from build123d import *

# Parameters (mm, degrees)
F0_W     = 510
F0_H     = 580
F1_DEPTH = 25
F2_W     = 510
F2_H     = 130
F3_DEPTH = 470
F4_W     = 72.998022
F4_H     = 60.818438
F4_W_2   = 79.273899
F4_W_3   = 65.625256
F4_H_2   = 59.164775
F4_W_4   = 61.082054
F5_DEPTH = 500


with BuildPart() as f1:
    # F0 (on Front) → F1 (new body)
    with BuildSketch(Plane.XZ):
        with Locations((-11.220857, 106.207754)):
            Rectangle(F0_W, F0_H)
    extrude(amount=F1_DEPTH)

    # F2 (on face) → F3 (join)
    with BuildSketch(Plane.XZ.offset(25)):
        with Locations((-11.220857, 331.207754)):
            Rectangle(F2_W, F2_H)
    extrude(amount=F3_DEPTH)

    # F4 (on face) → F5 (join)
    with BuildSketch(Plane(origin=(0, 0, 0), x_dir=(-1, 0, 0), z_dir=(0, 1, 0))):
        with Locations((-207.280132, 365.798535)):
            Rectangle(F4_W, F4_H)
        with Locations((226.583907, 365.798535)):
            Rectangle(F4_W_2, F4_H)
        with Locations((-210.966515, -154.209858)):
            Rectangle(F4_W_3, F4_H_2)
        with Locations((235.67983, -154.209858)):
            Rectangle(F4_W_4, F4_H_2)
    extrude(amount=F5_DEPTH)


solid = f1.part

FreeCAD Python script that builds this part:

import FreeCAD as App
import Part
import Sketcher

V = App.Vector
Q = App.Units.Quantity

doc = App.newDocument("Part")
body = doc.addObject("PartDesign::Body", "Body")

# Sketch on XZ plane
sketch1 = body.newObject("Sketcher::SketchObject", "Sketch")
sketch1.AttachmentSupport = (doc.getObject("XZ_Plane"), [""])
sketch1.MapMode = "FlatFace"
sketch1.addGeometry(Part.LineSegment(V(-266, 396, 0), V(-266, -184, 0)), False)
sketch1.addGeometry(Part.LineSegment(V(-266, -184, 0), V(244, -184, 0)), False)
sketch1.addGeometry(Part.LineSegment(V(244, -184, 0), V(244, 396, 0)), False)
sketch1.addGeometry(Part.LineSegment(V(244, 396, 0), V(-266, 396, 0)), False)
sketch1.addConstraint(Sketcher.Constraint("Coincident", 0, 2, 1, 1))
sketch1.addConstraint(Sketcher.Constraint("Coincident", 1, 2, 2, 1))
sketch1.addConstraint(Sketcher.Constraint("Coincident", 2, 2, 3, 1))
sketch1.addConstraint(Sketcher.Constraint("Coincident", 3, 2, 0, 1))
sketch1.addConstraint(Sketcher.Constraint("Vertical", 0))
sketch1.addConstraint(Sketcher.Constraint("Horizontal", 1))
sketch1.addConstraint(Sketcher.Constraint("Vertical", 2))
sketch1.addConstraint(Sketcher.Constraint("Horizontal", 3))
sketch1.addConstraint(Sketcher.Constraint("DistanceX", 1, 1, 1, 2, Q("510 mm")))
sketch1.addConstraint(Sketcher.Constraint("DistanceY", 0, 2, 0, 1, Q("580 mm")))
sketch1.addConstraint(Sketcher.Constraint("DistanceX", 0, 2, -1, 1, Q("266.220857 mm")))
sketch1.addConstraint(Sketcher.Constraint("DistanceY", 0, 2, -1, 1, Q("183.792246 mm")))
pad1 = body.newObject("PartDesign::Pad", "Pad")
pad1.Profile = sketch1
pad1.Length = 25

# Sketch on XZ plane
sketch2 = body.newObject("Sketcher::SketchObject", "Sketch001")
sketch2.AttachmentSupport = (doc.getObject("XZ_Plane"), [""])
sketch2.MapMode = "FlatFace"
sketch2.AttachmentOffset = App.Placement(V(0, 0, 25), App.Rotation())
sketch2.addGeometry(Part.LineSegment(V(-266, 396, 0), V(-266, 266, 0)), False)
sketch2.addGeometry(Part.LineSegment(V(-266, 266, 0), V(244, 266, 0)), False)
sketch2.addGeometry(Part.LineSegment(V(244, 266, 0), V(244, 396, 0)), False)
sketch2.addGeometry(Part.LineSegment(V(244, 396, 0), V(-266, 396, 0)), False)
sketch2.addConstraint(Sketcher.Constraint("Coincident", 0, 2, 1, 1))
sketch2.addConstraint(Sketcher.Constraint("Coincident", 1, 2, 2, 1))
sketch2.addConstraint(Sketcher.Constraint("Coincident", 2, 2, 3, 1))
sketch2.addConstraint(Sketcher.Constraint("Coincident", 3, 2, 0, 1))
sketch2.addConstraint(Sketcher.Constraint("Vertical", 0))
sketch2.addConstraint(Sketcher.Constraint("Horizontal", 1))
sketch2.addConstraint(Sketcher.Constraint("Vertical", 2))
sketch2.addConstraint(Sketcher.Constraint("Horizontal", 3))
sketch2.addConstraint(Sketcher.Constraint("DistanceX", 1, 1, 1, 2, Q("510 mm")))
sketch2.addConstraint(Sketcher.Constraint("DistanceY", 0, 2, 0, 1, Q("130 mm")))
sketch2.addConstraint(Sketcher.Constraint("DistanceX", 0, 2, -1, 1, Q("266.220857 mm")))
sketch2.addConstraint(Sketcher.Constraint("DistanceY", -1, 1, 0, 2, Q("266.207754 mm")))
pad2 = body.newObject("PartDesign::Pad", "Pad001")
pad2.Profile = sketch2
pad2.Length = 470

# Sketch on XZ plane
sketch3 = body.newObject("Sketcher::SketchObject", "Sketch002")
sketch3.AttachmentSupport = (doc.getObject("XZ_Plane"), [""])
sketch3.MapMode = "FlatFace"
sketch3.addGeometry(Part.LineSegment(V(244, 396, 0), V(244, 335, 0)), False)
sketch3.addGeometry(Part.LineSegment(V(244, 335, 0), V(171, 335, 0)), False)
sketch3.addGeometry(Part.LineSegment(V(171, 335, 0), V(171, 396, 0)), False)
sketch3.addGeometry(Part.LineSegment(V(171, 396, 0), V(244, 396, 0)), False)
sketch3.addGeometry(Part.LineSegment(V(-187, 396, 0), V(-187, 335, 0)), False)
sketch3.addGeometry(Part.LineSegment(V(-187, 335, 0), V(-266, 335, 0)), False)
sketch3.addGeometry(Part.LineSegment(V(-266, 335, 0), V(-266, 396, 0)), False)
sketch3.addGeometry(Part.LineSegment(V(-266, 396, 0), V(-187, 396, 0)), False)
sketch3.addGeometry(Part.LineSegment(V(244, -125, 0), V(244, -184, 0)), False)
sketch3.addGeometry(Part.LineSegment(V(244, -184, 0), V(178, -184, 0)), False)
sketch3.addGeometry(Part.LineSegment(V(178, -184, 0), V(178, -125, 0)), False)
sketch3.addGeometry(Part.LineSegment(V(178, -125, 0), V(244, -125, 0)), False)
sketch3.addGeometry(Part.LineSegment(V(-205, -125, 0), V(-205, -184, 0)), False)
sketch3.addGeometry(Part.LineSegment(V(-205, -184, 0), V(-266, -184, 0)), False)
sketch3.addGeometry(Part.LineSegment(V(-266, -184, 0), V(-266, -125, 0)), False)
sketch3.addGeometry(Part.LineSegment(V(-266, -125, 0), V(-205, -125, 0)), False)
sketch3.addConstraint(Sketcher.Constraint("Coincident", 0, 2, 1, 1))
sketch3.addConstraint(Sketcher.Constraint("Coincident", 1, 2, 2, 1))
sketch3.addConstraint(Sketcher.Constraint("Coincident", 2, 2, 3, 1))
sketch3.addConstraint(Sketcher.Constraint("Coincident", 3, 2, 0, 1))
sketch3.addConstraint(Sketcher.Constraint("Coincident", 4, 2, 5, 1))
sketch3.addConstraint(Sketcher.Constraint("Coincident", 5, 2, 6, 1))
sketch3.addConstraint(Sketcher.Constraint("Coincident", 6, 2, 7, 1))
sketch3.addConstraint(Sketcher.Constraint("Coincident", 7, 2, 4, 1))
sketch3.addConstraint(Sketcher.Constraint("Coincident", 8, 2, 9, 1))
sketch3.addConstraint(Sketcher.Constraint("Coincident", 9, 2, 10, 1))
sketch3.addConstraint(Sketcher.Constraint("Coincident", 10, 2, 11, 1))
sketch3.addConstraint(Sketcher.Constraint("Coincident", 11, 2, 8, 1))
sketch3.addConstraint(Sketcher.Constraint("Coincident", 12, 2, 13, 1))
sketch3.addConstraint(Sketcher.Constraint("Coincident", 13, 2, 14, 1))
sketch3.addConstraint(Sketcher.Constraint("Coincident", 14, 2, 15, 1))
sketch3.addConstraint(Sketcher.Constraint("Coincident", 15, 2, 12, 1))
sketch3.addConstraint(Sketcher.Constraint("Vertical", 0))
sketch3.addConstraint(Sketcher.Constraint("Horizontal", 1))
sketch3.addConstraint(Sketcher.Constraint("Vertical", 2))
sketch3.addConstraint(Sketcher.Constraint("Horizontal", 3))
sketch3.addConstraint(Sketcher.Constraint("Vertical", 4))
sketch3.addConstraint(Sketcher.Constraint("Horizontal", 5))
sketch3.addConstraint(Sketcher.Constraint("Vertical", 6))
sketch3.addConstraint(Sketcher.Constraint("Horizontal", 7))
sketch3.addConstraint(Sketcher.Constraint("Vertical", 8))
sketch3.addConstraint(Sketcher.Constraint("Horizontal", 9))
sketch3.addConstraint(Sketcher.Constraint("Vertical", 10))
sketch3.addConstraint(Sketcher.Constraint("Horizontal", 11))
sketch3.addConstraint(Sketcher.Constraint("Vertical", 12))
sketch3.addConstraint(Sketcher.Constraint("Horizontal", 13))
sketch3.addConstraint(Sketcher.Constraint("Vertical", 14))
sketch3.addConstraint(Sketcher.Constraint("Horizontal", 15))
sketch3.addConstraint(Sketcher.Constraint("Horizontal", 1, 2, 4, 2))
sketch3.addConstraint(Sketcher.Constraint("Horizontal", 3, 2, 6, 2))
sketch3.addConstraint(Sketcher.Constraint("Horizontal", 9, 2, 12, 2))
sketch3.addConstraint(Sketcher.Constraint("Horizontal", 11, 2, 14, 2))
sketch3.addConstraint(Sketcher.Constraint("Vertical", 3, 2, 8, 2))
sketch3.addConstraint(Sketcher.Constraint("Vertical", 6, 2, 13, 2))
sketch3.addConstraint(Sketcher.Constraint("DistanceX", 5, 2, 0, 2, Q("510 mm")))
sketch3.addConstraint(Sketcher.Constraint("DistanceY", 8, 2, 3, 2, Q("580 mm")))
sketch3.addConstraint(Sketcher.Constraint("DistanceX", 5, 2, 5, 1, Q("79.273899 mm")))
sketch3.addConstraint(Sketcher.Constraint("DistanceX", 1, 2, 1, 1, Q("72.998022 mm")))
sketch3.addConstraint(Sketcher.Constraint("DistanceY", 0, 2, 0, 1, Q("60.818438 mm")))
sketch3.addConstraint(Sketcher.Constraint("DistanceX", 9, 2, 9, 1, Q("65.625256 mm")))
sketch3.addConstraint(Sketcher.Constraint("DistanceX", 13, 2, 13, 1, Q("61.082054 mm")))
sketch3.addConstraint(Sketcher.Constraint("DistanceY", 8, 2, 8, 1, Q("59.164775 mm")))
sketch3.addConstraint(Sketcher.Constraint("DistanceX", -1, 1, 1, 2, Q("170.781121 mm")))
sketch3.addConstraint(Sketcher.Constraint("DistanceY", 10, 2, -1, 1, Q("124.627471 mm")))
pad3 = body.newObject("PartDesign::Pad", "Pad002")
pad3.Profile = sketch3
pad3.Length = 500
pad3.Reversed = True

doc.recompute()
